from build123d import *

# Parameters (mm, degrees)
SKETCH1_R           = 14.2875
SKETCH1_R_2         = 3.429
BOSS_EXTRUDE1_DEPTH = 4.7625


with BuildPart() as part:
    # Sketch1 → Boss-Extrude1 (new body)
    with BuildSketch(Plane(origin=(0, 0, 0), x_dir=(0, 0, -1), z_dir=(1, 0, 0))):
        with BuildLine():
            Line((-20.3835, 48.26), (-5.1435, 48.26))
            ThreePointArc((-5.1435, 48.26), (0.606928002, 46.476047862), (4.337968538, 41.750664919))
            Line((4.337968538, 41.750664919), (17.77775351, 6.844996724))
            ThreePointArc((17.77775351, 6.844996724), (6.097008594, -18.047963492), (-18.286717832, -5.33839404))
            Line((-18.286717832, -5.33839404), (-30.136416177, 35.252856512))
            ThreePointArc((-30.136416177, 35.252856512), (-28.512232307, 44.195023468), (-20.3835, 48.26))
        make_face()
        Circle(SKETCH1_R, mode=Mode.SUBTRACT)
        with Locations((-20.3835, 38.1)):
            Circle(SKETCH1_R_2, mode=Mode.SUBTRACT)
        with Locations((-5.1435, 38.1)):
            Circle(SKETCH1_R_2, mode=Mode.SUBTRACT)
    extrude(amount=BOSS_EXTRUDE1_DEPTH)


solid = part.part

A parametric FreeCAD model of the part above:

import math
import FreeCAD as App
import Part
import Sketcher
Q = App.Units.Quantity

doc = App.newDocument("Part")
params = doc.addObject("Spreadsheet::Sheet", "Params")
for row, (alias, value) in enumerate([
    ("sketch1_radius", "0.4 in"),
    ("sketch1_diameter", "0.27 in"),
    ("sketch1_radius2", "0.75 in"),
    ("sketch1_diameter2", "1.125 in"),
    ("sketch1_height", "0.6 in"),
    ("pad1_length", "0.1875 in"),
], start=1):
    params.set(f"A{row}", alias)
    params.set(f"B{row}", "=" + value)
    params.setAlias(f"B{row}", alias)

body = doc.addObject("PartDesign::Body", "Body")

sketch1 = doc.addObject("Sketcher::SketchObject", "Sketch")
body.addObject(sketch1)
sketch1.AttachmentSupport = (doc.YZ_Plane, [""])
sketch1.MapMode = "FlatFace"
sketch1.addGeometry([
    Part.LineSegment(App.Vector(48.3, 5.1, 0), App.Vector(48.3, 20.4, 0)),
    Part.ArcOfCircle(Part.Circle(App.Vector(38.1, 20.4, 0), App.Vector(0, 0, 1), 10.2), math.radians(0), math.radians(106)),
    Part.LineSegment(App.Vector(35.3, 30.1, 0), App.Vector(-5.3, 18.3, 0)),
    Part.ArcOfCircle(Part.Circle(App.Vector(0, 0, 0), App.Vector(0, 0, 1), 19.1), math.radians(106), math.radians(291)),
    Part.LineSegment(App.Vector(6.8, -17.8, 0), App.Vector(41.8, -4.3, 0)),
    Part.ArcOfCircle(Part.Circle(App.Vector(38.1, 5.1, 0), App.Vector(0, 0, 1), 10.2), math.radians(-69), math.radians(0)),
    Part.Circle(App.Vector(0, 0, 0), App.Vector(0, 0, 1), 14.3),
    Part.Circle(App.Vector(38.1, 5.1, 0), App.Vector(0, 0, 1), 3.4),
    Part.Circle(App.Vector(38.1, 20.4, 0), App.Vector(0, 0, 1), 3.4),
], False)
sketch1.addConstraint([
    Sketcher.Constraint("Tangent", 0, 2, 1, 1),
    Sketcher.Constraint("Tangent", 1, 2, 2, 1),
    Sketcher.Constraint("Tangent", 2, 2, 3, 1),
    Sketcher.Constraint("Tangent", 3, 2, 4, 1),
    Sketcher.Constraint("Tangent", 4, 2, 5, 1),
    Sketcher.Constraint("Tangent", 5, 2, 0, 1),
    Sketcher.Constraint("Vertical", 0),
    Sketcher.Constraint("Coincident", 3, 3, -1, 1),
    Sketcher.Constraint("Coincident", 6, 3, -1, 1),
    Sketcher.Constraint("Coincident", 7, 3, 5, 3),
    Sketcher.Constraint("Coincident", 8, 3, 1, 3),
    Sketcher.Constraint("Equal", 1, 5),
    Sketcher.Constraint("Equal", 7, 8),
    Sketcher.Constraint("Radius", 1, Q("0.4 in")),
    Sketcher.Constraint("Diameter", 7, Q("0.27 in")),
    Sketcher.Constraint("Radius", 3, Q("0.75 in")),
    Sketcher.Constraint("Diameter", 6, Q("1.125 in")),
    Sketcher.Constraint("DistanceY", 0, 1, 0, 2, Q("0.6 in")),
    Sketcher.Constraint("DistanceX", -1, 1, 1, 3, Q("1.5 in")),
    Sketcher.Constraint("DistanceY", -1, 1, 1, 3, Q("0.8025 in")),
])
sketch1.setExpression("Constraints[13]", "Params.sketch1_radius")
sketch1.setExpression("Constraints[14]", "Params.sketch1_diameter")
sketch1.setExpression("Constraints[15]", "Params.sketch1_radius2")
sketch1.setExpression("Constraints[16]", "Params.sketch1_diameter2")
sketch1.setExpression("Constraints[17]", "Params.sketch1_height")
pad1 = doc.addObject("PartDesign::Pad", "Pad")
body.addObject(pad1)
pad1.Profile = sketch1
pad1.setExpression("Length", "Params.pad1_length")

doc.recompute()
